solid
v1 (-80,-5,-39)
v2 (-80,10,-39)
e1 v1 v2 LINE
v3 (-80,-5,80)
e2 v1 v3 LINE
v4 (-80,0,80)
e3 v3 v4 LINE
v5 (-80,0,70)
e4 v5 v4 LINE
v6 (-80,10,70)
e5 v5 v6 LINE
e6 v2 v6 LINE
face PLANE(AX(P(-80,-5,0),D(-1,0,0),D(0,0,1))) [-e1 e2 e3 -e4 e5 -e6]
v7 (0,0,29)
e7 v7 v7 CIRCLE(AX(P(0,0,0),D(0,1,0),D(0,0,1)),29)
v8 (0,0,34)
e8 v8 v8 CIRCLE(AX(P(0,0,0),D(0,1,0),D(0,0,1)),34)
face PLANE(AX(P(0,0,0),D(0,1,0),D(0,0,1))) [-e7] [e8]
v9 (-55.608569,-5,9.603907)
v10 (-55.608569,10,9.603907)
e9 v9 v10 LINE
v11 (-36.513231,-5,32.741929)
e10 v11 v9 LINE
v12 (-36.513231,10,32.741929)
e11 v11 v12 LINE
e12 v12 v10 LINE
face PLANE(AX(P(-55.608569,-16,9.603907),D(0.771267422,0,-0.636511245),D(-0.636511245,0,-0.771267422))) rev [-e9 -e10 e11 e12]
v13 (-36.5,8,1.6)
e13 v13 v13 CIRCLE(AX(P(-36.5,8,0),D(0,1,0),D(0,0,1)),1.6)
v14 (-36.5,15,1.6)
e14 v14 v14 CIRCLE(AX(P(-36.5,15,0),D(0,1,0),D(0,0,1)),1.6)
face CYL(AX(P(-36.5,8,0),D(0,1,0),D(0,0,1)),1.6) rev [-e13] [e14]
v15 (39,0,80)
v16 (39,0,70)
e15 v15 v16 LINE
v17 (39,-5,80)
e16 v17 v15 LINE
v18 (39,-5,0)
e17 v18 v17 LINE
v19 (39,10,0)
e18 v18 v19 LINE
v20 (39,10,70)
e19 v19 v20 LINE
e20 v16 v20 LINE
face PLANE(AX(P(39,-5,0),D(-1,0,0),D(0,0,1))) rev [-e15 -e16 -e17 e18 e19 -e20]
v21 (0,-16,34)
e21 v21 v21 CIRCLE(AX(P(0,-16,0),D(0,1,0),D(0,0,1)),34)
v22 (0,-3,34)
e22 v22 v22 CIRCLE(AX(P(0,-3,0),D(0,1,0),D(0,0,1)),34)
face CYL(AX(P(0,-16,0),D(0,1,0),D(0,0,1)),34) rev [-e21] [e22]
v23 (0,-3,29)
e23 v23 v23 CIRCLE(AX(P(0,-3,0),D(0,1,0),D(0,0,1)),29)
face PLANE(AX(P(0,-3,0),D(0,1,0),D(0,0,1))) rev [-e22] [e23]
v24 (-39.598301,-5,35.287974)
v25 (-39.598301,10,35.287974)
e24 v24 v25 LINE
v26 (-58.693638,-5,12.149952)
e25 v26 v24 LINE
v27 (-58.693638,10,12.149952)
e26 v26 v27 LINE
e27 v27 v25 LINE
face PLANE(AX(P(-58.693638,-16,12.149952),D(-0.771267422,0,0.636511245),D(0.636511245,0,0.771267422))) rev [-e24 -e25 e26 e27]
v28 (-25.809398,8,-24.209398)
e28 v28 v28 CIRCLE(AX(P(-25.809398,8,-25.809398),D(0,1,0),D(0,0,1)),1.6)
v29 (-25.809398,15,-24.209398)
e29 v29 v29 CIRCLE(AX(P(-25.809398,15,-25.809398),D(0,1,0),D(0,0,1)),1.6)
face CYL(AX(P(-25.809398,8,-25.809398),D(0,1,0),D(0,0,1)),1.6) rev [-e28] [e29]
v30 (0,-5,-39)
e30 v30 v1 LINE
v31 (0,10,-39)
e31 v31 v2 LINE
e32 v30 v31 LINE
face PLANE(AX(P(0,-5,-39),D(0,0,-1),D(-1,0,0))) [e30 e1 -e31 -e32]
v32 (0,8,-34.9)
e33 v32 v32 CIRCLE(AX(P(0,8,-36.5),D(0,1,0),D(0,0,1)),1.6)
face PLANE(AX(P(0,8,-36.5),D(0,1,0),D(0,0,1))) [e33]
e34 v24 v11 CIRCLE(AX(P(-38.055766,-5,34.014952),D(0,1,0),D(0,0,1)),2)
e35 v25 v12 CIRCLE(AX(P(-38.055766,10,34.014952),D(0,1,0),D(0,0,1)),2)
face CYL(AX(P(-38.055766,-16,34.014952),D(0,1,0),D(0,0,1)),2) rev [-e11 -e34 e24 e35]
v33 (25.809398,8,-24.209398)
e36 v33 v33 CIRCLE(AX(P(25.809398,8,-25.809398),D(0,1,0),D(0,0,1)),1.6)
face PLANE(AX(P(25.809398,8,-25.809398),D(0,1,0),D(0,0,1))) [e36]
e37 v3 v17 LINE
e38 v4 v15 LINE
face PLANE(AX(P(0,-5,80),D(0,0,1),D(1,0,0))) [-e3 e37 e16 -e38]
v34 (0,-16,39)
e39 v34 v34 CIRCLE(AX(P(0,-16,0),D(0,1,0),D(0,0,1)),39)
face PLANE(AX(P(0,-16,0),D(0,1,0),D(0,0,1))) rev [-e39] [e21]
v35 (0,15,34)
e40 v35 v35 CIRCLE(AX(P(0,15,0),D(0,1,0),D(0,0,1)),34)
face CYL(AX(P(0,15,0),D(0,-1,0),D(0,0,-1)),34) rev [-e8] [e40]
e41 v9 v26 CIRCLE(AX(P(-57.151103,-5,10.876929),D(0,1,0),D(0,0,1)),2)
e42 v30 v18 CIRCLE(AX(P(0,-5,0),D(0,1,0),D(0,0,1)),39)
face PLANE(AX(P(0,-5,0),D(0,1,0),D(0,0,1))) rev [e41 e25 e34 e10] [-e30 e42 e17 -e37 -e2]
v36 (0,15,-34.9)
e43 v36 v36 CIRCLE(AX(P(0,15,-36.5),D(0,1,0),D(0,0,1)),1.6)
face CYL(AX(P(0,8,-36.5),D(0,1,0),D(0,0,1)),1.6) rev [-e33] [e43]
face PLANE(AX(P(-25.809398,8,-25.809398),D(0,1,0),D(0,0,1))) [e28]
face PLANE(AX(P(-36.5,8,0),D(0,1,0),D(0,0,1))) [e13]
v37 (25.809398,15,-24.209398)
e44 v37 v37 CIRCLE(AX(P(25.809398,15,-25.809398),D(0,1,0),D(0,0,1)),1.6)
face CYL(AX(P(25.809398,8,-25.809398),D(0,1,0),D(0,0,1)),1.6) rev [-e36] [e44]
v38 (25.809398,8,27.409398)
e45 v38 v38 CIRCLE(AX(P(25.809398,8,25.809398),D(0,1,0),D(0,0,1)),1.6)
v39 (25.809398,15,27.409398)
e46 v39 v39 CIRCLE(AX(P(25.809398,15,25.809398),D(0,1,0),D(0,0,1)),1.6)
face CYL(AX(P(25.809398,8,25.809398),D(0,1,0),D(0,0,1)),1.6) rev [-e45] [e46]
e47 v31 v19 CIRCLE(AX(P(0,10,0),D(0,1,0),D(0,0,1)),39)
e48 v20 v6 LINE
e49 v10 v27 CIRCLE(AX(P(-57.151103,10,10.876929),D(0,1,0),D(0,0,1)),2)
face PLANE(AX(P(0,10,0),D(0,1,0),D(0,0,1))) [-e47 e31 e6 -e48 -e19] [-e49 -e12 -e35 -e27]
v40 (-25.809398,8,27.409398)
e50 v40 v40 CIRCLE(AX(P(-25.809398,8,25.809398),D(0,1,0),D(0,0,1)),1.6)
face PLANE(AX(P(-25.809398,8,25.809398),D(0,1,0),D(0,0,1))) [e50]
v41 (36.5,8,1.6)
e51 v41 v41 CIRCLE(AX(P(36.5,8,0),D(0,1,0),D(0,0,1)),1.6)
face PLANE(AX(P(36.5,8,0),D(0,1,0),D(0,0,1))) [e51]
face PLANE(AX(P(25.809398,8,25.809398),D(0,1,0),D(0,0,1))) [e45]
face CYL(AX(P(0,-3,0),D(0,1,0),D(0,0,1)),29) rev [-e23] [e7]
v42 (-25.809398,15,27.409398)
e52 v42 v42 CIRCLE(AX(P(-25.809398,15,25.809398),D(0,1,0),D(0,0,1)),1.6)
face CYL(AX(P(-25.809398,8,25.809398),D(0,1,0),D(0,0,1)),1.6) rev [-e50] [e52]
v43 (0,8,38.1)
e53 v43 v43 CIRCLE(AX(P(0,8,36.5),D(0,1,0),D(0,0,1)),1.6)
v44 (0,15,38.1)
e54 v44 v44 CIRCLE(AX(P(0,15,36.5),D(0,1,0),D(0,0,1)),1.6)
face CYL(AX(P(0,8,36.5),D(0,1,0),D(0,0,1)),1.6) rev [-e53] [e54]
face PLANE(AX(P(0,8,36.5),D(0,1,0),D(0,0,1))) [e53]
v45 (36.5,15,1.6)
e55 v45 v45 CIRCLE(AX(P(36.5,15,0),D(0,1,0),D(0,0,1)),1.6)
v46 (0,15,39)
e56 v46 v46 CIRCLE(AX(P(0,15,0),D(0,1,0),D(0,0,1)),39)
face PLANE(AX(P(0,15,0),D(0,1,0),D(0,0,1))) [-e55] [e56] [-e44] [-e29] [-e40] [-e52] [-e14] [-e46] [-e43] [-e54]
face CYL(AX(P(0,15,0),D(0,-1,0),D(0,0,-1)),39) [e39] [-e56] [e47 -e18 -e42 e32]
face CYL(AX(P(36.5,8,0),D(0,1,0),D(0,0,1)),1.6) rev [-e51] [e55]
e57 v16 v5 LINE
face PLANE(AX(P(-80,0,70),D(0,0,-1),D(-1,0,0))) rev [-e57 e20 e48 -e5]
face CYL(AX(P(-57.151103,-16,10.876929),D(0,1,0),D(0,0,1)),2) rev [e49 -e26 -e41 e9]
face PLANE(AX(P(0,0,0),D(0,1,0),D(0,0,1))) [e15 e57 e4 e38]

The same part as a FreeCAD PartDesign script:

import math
import FreeCAD as App
import Part
import Sketcher
from FreeCAD import Vector

doc = App.newDocument("Part")
params = doc.addObject("Spreadsheet::Sheet", "Params")
for row, (alias, value) in enumerate([
    ("sketch1_diameter", "78 mm"),
    ("sketch1_diameter2", "68 mm"),
    ("pad1_length", "15 mm"),
    ("sketch2_diameter", "78 mm"),
    ("sketch2_diameter2", "58 mm"),
    ("pad2_length", "3 mm"),
    ("sketch3_diameter", "78 mm"),
    ("sketch3_diameter2", "68 mm"),
    ("pad3_length", "16 mm"),
    ("sketch4_radius", "39 mm"),
    ("sketch4_width", "80 mm"),
    ("pad4_length", "10 mm"),
    ("pad4_length2", "5 mm"),
    ("sketch5_width", "119 mm"),
    ("sketch5_height", "10 mm"),
    ("pocket1_length", "10 mm"),
    ("sketch6_diameter", "3.2 mm"),
    ("pocket2_length", "7 mm"),
    ("sketch7_radius", "2 mm"),
    ("sketch7_length", "30 mm"),
], start=1):
    params.set(f"A{row}", alias)
    params.set(f"B{row}", "=" + value)
    params.setAlias(f"B{row}", alias)

body = doc.addObject("PartDesign::Body", "Body")

sketch1 = body.newObject("Sketcher::SketchObject", "Sketch")
sketch1.AttachmentSupport = (doc.getObject("XZ_Plane"), [""])
sketch1.MapMode = "FlatFace"
sketch1.addGeometry([
    Part.Circle(Vector(0, 0, 0), Vector(0, 0, 1), 39),
    Part.Circle(Vector(0, 0, 0), Vector(0, 0, 1), 34),
], False)
sketch1.addConstraint([
    Sketcher.Constraint("Coincident", 0, 3, -1, 1),
    Sketcher.Constraint("Coincident", 1, 3, -1, 1),
    Sketcher.Constraint("Diameter", 0, 78.0),
    Sketcher.Constraint("Diameter", 1, 68.0),
])
sketch1.setExpression("Constraints[2]", "Params.sketch1_diameter")
sketch1.setExpression("Constraints[3]", "Params.sketch1_diameter2")
pad1 = body.newObject("PartDesign::Pad", "Pad")
pad1.Profile = sketch1
pad1.setExpression("Length", "Params.pad1_length")
pad1.Reversed = True

sketch2 = body.newObject("Sketcher::SketchObject", "Sketch001")
sketch2.AttachmentSupport = (doc.getObject("XZ_Plane"), [""])
sketch2.MapMode = "FlatFace"
sketch2.addGeometry([
    Part.Circle(Vector(0, 0, 0), Vector(0, 0, 1), 39),
    Part.Circle(Vector(0, 0, 0), Vector(0, 0, 1), 29),
], False)
sketch2.addConstraint([
    Sketcher.Constraint("Coincident", 0, 3, -1, 1),
    Sketcher.Constraint("Coincident", 1, 3, -1, 1),
    Sketcher.Constraint("Diameter", 0, 78.0),
    Sketcher.Constraint("Diameter", 1, 58.0),
])
sketch2.setExpression("Constraints[2]", "Params.sketch2_diameter")
sketch2.setExpression("Constraints[3]", "Params.sketch2_diameter2")
pad2 = body.newObject("PartDesign::Pad", "Pad001")
pad2.Profile = sketch2
pad2.setExpression("Length", "Params.pad2_length")

sketch3 = body.newObject("Sketcher::SketchObject", "Sketch002")
sketch3.AttachmentSupport = (doc.getObject("XZ_Plane"), [""])
sketch3.MapMode = "FlatFace"
sketch3.addGeometry([
    Part.Circle(Vector(0, 0, 0), Vector(0, 0, 1), 39),
    Part.Circle(Vector(0, 0, 0), Vector(0, 0, 1), 34),
], False)
sketch3.addConstraint([
    Sketcher.Constraint("Coincident", 0, 3, -1, 1),
    Sketcher.Constraint("Coincident", 1, 3, -1, 1),
    Sketcher.Constraint("Diameter", 0, 78.0),
    Sketcher.Constraint("Diameter", 1, 68.0),
])
sketch3.setExpression("Constraints[2]", "Params.sketch3_diameter")
sketch3.setExpression("Constraints[3]", "Params.sketch3_diameter2")
pad3 = body.newObject("PartDesign::Pad", "Pad002")
pad3.Profile = sketch3
pad3.setExpression("Length", "Params.pad3_length")

sketch4 = body.newObject("Sketcher::SketchObject", "Sketch003")
sketch4.AttachmentSupport = (doc.getObject("XZ_Plane"), [""])
sketch4.MapMode = "FlatFace"
sketch4.addGeometry([
    Part.ArcOfCircle(Part.Circle(Vector(0, 0, 0), Vector(0, 0, 1), 39), math.radians(0), math.radians(270)),
    Part.LineSegment(Vector(0, -39, 0), Vector(-80, -39, 0)),
    Part.LineSegment(Vector(-80, -39, 0), Vector(-80, 80, 0)),
    Part.LineSegment(Vector(-80, 80, 0), Vector(39, 80, 0)),
    Part.LineSegment(Vector(39, 80, 0), Vector(39, 0, 0)),
], False)
sketch4.addConstraint([
    Sketcher.Constraint("Tangent", 0, 2, 1, 1),
    Sketcher.Constraint("Coincident", 1, 2, 2, 1),
    Sketcher.Constraint("Coincident", 2, 2, 3, 1),
    Sketcher.Constraint("Coincident", 3, 2, 4, 1),
    Sketcher.Constraint("Tangent", 4, 2, 0, 1),
    Sketcher.Constraint("Horizontal", 1),
    Sketcher.Constraint("Vertical", 2),
    Sketcher.Constraint("Horizontal", 3),
    Sketcher.Constraint("Vertical", 4),
    Sketcher.Constraint("Coincident", 0, 3, -1, 1),
    Sketcher.Constraint("Equal", 3, 2),
    Sketcher.Constraint("Radius", 0, 39.0),
    Sketcher.Constraint("DistanceX", 1, 2, 1, 1, 80.0),
])
sketch4.setExpression("Constraints[11]", "Params.sketch4_radius")
sketch4.setExpression("Constraints[12]", "Params.sketch4_width")
pad4 = body.newObject("PartDesign::Pad", "Pad003")
pad4.Profile = sketch4
pad4.Type = "TwoLengths"
pad4.setExpression("Length", "Params.pad4_length")
pad4.setExpression("Length2", "Params.pad4_length2")
pad4.Reversed = True

sketch5 = body.newObject("Sketcher::SketchObject", "Sketch004")
sketch5.AttachmentSupport = (doc.getObject("XZ_Plane"), [""])
sketch5.MapMode = "FlatFace"
sketch5.AttachmentOffset = App.Placement(Vector(0, 0, -10), App.Rotation())
sketch5.addGeometry([
    Part.LineSegment(Vector(-80, 70, 0), Vector(-80, 80, 0)),
    Part.LineSegment(Vector(-80, 80, 0), Vector(39, 80, 0)),
    Part.LineSegment(Vector(39, 80, 0), Vector(39, 70, 0)),
    Part.LineSegment(Vector(39, 70, 0), Vector(-80, 70, 0)),
], False)
sketch5.addConstraint([
    Sketcher.Constraint("Coincident", 0, 2, 1, 1),
    Sketcher.Constraint("Coincident", 1, 2, 2, 1),
    Sketcher.Constraint("Coincident", 2, 2, 3, 1),
    Sketcher.Constraint("Coincident", 3, 2, 0, 1),
    Sketcher.Constraint("Vertical", 0),
    Sketcher.Constraint("Horizontal", 1),
    Sketcher.Constraint("Vertical", 2),
    Sketcher.Constraint("Horizontal", 3),
    Sketcher.Constraint("DistanceX", 1, 1, 1, 2, 119.0),
    Sketcher.Constraint("DistanceY", 0, 1, 0, 2, 10.0),
    Sketcher.Constraint("DistanceX", 0, 2, -1, 1, 80.0),
    Sketcher.Constraint("DistanceY", -1, 1, 0, 2, 80.0),
])
sketch5.setExpression("Constraints[8]", "Params.sketch5_width")
sketch5.setExpression("Constraints[9]", "Params.sketch5_height")
pocket1 = body.newObject("PartDesign::Pocket", "Pocket")
pocket1.Profile = sketch5
pocket1.setExpression("Length", "Params.pocket1_length")
pocket1.Reversed = True

sketch6 = body.newObject("Sketcher::SketchObject", "Sketch005")
sketch6.AttachmentSupport = (doc.getObject("XZ_Plane"), [""])
sketch6.MapMode = "FlatFace"
sketch6.AttachmentOffset = App.Placement(Vector(0, 0, -15), App.Rotation())
sketch6.addGeometry([
    Part.Circle(Vector(0, -36.5, 0), Vector(0, 0, 1), 1.6),
    Part.Circle(Vector(25.809398, -25.809398, 0), Vector(0, 0, 1), 1.6),
    Part.Circle(Vector(36.5, 0, 0), Vector(0, 0, 1), 1.6),
    Part.Circle(Vector(25.809398, 25.809398, 0), Vector(0, 0, 1), 1.6),
    Part.Circle(Vector(0, 36.5, 0), Vector(0, 0, 1), 1.6),
    Part.Circle(Vector(-25.809398, 25.809398, 0), Vector(0, 0, 1), 1.6),
    Part.Circle(Vector(-36.5, 0, 0), Vector(0, 0, 1), 1.6),
    Part.Circle(Vector(-25.809398, -25.809398, 0), Vector(0, 0, 1), 1.6),
], False)
sketch6.addConstraint([
    Sketcher.Constraint("Equal", 0, 1),
    Sketcher.Constraint("Equal", 1, 2),
    Sketcher.Constraint("Equal", 2, 3),
    Sketcher.Constraint("Equal", 3, 4),
    Sketcher.Constraint("Equal", 4, 5),
    Sketcher.Constraint("Equal", 5, 6),
    Sketcher.Constraint("Equal", 6, 7),
    Sketcher.Constraint("Symmetric", 0, 3, 4, 3, -1, 1),
    Sketcher.Constraint("Symmetric", 1, 3, 5, 3, -1, 1),
    Sketcher.Constraint("Symmetric", 2, 3, 6, 3, -1, 1),
    Sketcher.Constraint("Symmetric", 3, 3, 7, 3, -1, 1),
    Sketcher.Constraint("Symmetric", 3, 3, 5, 3, -2),
    Sketcher.Constraint("PointOnObject", 0, 3, -2),
    Sketcher.Constraint("PointOnObject", 2, 3, -1),
    Sketcher.Constraint("Diameter", 0, 3.2),
    Sketcher.Constraint("DistanceY", 0, 3, 4, 3, 73.0),
    Sketcher.Constraint("DistanceX", -1, 1, 2, 3, 36.5),
    Sketcher.Constraint("DistanceX", -1, 1, 1, 3, 25.809398),
    Sketcher.Constraint("DistanceY", 1, 3, -1, 1, 25.809398),
])
sketch6.setExpression("Constraints[14]", "Params.sketch6_diameter")
pocket2 = body.newObject("PartDesign::Pocket", "Pocket001")
pocket2.Profile = sketch6
pocket2.setExpression("Length", "Params.pocket2_length")
pocket2.Reversed = True

sketch7 = body.newObject("Sketcher::SketchObject", "Sketch006")
sketch7.AttachmentSupport = (doc.getObject("XZ_Plane"), [""])
sketch7.MapMode = "FlatFace"
sketch7.AttachmentOffset = App.Placement(Vector(0, 0, -10), App.Rotation())
sketch7.addGeometry([
    Part.LineSegment(Vector(-36.513231, 32.741929, 0), Vector(-55.608569, 9.603907, 0)),
    Part.ArcOfCircle(Part.Circle(Vector(-57.151103, 10.876929, 0), Vector(0, 0, 1), 2), math.radians(140.467839), math.radians(320.467839)),
    Part.LineSegment(Vector(-58.693638, 12.149952, 0), Vector(-39.598301, 35.287974, 0)),
    Part.ArcOfCircle(Part.Circle(Vector(-38.055766, 34.014952, 0), Vector(0, 0, 1), 2), math.radians(-39.532161), math.radians(140.467839)),
], False)
sketch7.addConstraint([
    Sketcher.Constraint("Tangent", 0, 2, 1, 2),
    Sketcher.Constraint("Tangent", 1, 1, 2, 1),
    Sketcher.Constraint("Tangent", 2, 2, 3, 2),
    Sketcher.Constraint("Tangent", 3, 1, 0, 1),
    Sketcher.Constraint("Equal", 1, 3),
    Sketcher.Constraint("Radius", 1, 2.0),
    Sketcher.Constraint("Distance", 0, 30.0),
    Sketcher.Constraint("DistanceY", 1, 1, 3, 3, 21.865),
    Sketcher.Constraint("DistanceX", 2, 2, -1, 1, 39.598301),
    Sketcher.Constraint("DistanceY", -1, 1, 1, 3, 10.876929),
])
sketch7.setExpression("Constraints[5]", "Params.sketch7_radius")
sketch7.setExpression("Constraints[6]", "Params.sketch7_length")
pocket3 = body.newObject("PartDesign::Pocket", "Pocket002")
pocket3.Profile = sketch7
pocket3.Type = "ThroughAll"
pocket3.Reversed = True

doc.recompute()
